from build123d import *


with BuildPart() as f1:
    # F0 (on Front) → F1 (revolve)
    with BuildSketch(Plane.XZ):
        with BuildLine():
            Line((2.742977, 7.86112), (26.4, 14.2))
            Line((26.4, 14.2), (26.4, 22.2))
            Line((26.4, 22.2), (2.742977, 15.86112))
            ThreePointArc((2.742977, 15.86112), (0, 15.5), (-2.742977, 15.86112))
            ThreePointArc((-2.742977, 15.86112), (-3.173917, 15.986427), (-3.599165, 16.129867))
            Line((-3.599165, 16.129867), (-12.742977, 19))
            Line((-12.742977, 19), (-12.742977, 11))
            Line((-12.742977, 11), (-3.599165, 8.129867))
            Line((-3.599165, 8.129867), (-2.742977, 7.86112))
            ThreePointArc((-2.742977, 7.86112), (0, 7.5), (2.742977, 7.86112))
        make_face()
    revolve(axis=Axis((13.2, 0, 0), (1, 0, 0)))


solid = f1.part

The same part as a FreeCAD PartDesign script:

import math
import FreeCAD as App
import Part
import Sketcher
Q = App.Units.Quantity

doc = App.newDocument("Part")
body = doc.addObject("PartDesign::Body", "Body")

# Sketch on XZ plane
sketch1 = body.newObject("Sketcher::SketchObject", "Sketch")
sketch1.AttachmentSupport = (doc.getObject("XZ_Plane"), [""])
sketch1.MapMode = "FlatFace"
sketch1.addGeometry(Part.LineSegment(App.Vector(2.7, 7.9, 0), App.Vector(26.4, 14.2, 0)), False)
sketch1.addGeometry(Part.LineSegment(App.Vector(26.4, 14.2, 0), App.Vector(26.4, 22.2, 0)), False)
sketch1.addGeometry(Part.LineSegment(App.Vector(26.4, 22.2, 0), App.Vector(2.7, 15.9, 0)), False)
sketch1.addGeometry(Part.ArcOfCircle(Part.Circle(App.Vector(0, 26.1, 0), App.Vector(0, 0, 1), 10.6), math.radians(-105), math.radians(-75)), False)
sketch1.addGeometry(Part.ArcOfCircle(Part.Circle(App.Vector(0, 26.1, 0), App.Vector(0, 0, 1), 10.6), math.radians(-109.85), math.radians(-105)), False)
sketch1.addGeometry(Part.LineSegment(App.Vector(-3.6, 16.1, 0), App.Vector(-12.7, 19, 0)), False)
sketch1.addGeometry(Part.LineSegment(App.Vector(-12.7, 19, 0), App.Vector(-12.7, 11, 0)), False)
sketch1.addGeometry(Part.LineSegment(App.Vector(-12.7, 11, 0), App.Vector(-3.6, 8.1, 0)), False)
sketch1.addGeometry(Part.LineSegment(App.Vector(-3.6, 8.1, 0), App.Vector(-2.7, 7.9, 0)), False)
sketch1.addGeometry(Part.ArcOfCircle(Part.Circle(App.Vector(0, 18.1, 0), App.Vector(0, 0, 1), 10.6), math.radians(-105), math.radians(-75)), False)
sketch1.addConstraint(Sketcher.Constraint("Coincident", 0, 2, 1, 1))
sketch1.addConstraint(Sketcher.Constraint("Coincident", 1, 2, 2, 1))
sketch1.addConstraint(Sketcher.Constraint("Tangent", 2, 2, 3, 2))
sketch1.addConstraint(Sketcher.Constraint("Coincident", 3, 1, 4, 2))
sketch1.addConstraint(Sketcher.Constraint("Coincident", 4, 1, 5, 1))
sketch1.addConstraint(Sketcher.Constraint("Coincident", 5, 2, 6, 1))
sketch1.addConstraint(Sketcher.Constraint("Coincident", 6, 2, 7, 1))
sketch1.addConstraint(Sketcher.Constraint("Coincident", 7, 2, 8, 1))
sketch1.addConstraint(Sketcher.Constraint("Coincident", 8, 2, 9, 1))
sketch1.addConstraint(Sketcher.Constraint("Tangent", 9, 2, 0, 1))
sketch1.addConstraint(Sketcher.Constraint("Vertical", 1))
sketch1.addConstraint(Sketcher.Constraint("Vertical", 6))
sketch1.addConstraint(Sketcher.Constraint("Equal", 3, 9))
sketch1.addConstraint(Sketcher.Constraint("Symmetric", 2, 2, 3, 1, -2))
sketch1.addConstraint(Sketcher.Constraint("Symmetric", 8, 2, 9, 2, -2))
sketch1.addConstraint(Sketcher.Constraint("Parallel", 0, 2))
sketch1.addConstraint(Sketcher.Constraint("Parallel", 5, 7))
sketch1.addConstraint(Sketcher.Constraint("Parallel", 7, 8))
sketch1.addConstraint(Sketcher.Constraint("Vertical", 4, 1, 7, 2))
sketch1.addConstraint(Sketcher.Constraint("Equal", 1, 6))
sketch1.addConstraint(Sketcher.Constraint("DistanceY", 1, 1, 1, 2, Q("8 mm")))
sketch1.addConstraint(Sketcher.Constraint("Angle", 0, Q("15 deg")))
sketch1.addConstraint(Sketcher.Constraint("DistanceY", -1, 1, 5, 2, Q("19 mm")))
sketch1.addConstraint(Sketcher.Constraint("DistanceX", 5, 2, 3, 1, Q("10 mm")))
sketch1.addConstraint(Sketcher.Constraint("DistanceX", -1, 1, 0, 2, Q("26.4 mm")))
sketch1.addConstraint(Sketcher.Constraint("DistanceY", -1, 1, 0, 2, Q("14.2 mm")))
sketch1.addConstraint(Sketcher.Constraint("Radius", 3, Q("10.598043 mm")))
sketch1.addConstraint(Sketcher.Constraint("Radius", 4, Q("10.597578 mm")))
sketch1.addConstraint(Sketcher.Constraint("DistanceY", -1, 1, 4, 3, Q("26.097599 mm")))
revolution = body.newObject("PartDesign::Revolution", "Revolution")
revolution.Profile = sketch1
revolution.ReferenceAxis = (sketch1, ["H_Axis"])
revolution.Angle = 360

doc.recompute()
